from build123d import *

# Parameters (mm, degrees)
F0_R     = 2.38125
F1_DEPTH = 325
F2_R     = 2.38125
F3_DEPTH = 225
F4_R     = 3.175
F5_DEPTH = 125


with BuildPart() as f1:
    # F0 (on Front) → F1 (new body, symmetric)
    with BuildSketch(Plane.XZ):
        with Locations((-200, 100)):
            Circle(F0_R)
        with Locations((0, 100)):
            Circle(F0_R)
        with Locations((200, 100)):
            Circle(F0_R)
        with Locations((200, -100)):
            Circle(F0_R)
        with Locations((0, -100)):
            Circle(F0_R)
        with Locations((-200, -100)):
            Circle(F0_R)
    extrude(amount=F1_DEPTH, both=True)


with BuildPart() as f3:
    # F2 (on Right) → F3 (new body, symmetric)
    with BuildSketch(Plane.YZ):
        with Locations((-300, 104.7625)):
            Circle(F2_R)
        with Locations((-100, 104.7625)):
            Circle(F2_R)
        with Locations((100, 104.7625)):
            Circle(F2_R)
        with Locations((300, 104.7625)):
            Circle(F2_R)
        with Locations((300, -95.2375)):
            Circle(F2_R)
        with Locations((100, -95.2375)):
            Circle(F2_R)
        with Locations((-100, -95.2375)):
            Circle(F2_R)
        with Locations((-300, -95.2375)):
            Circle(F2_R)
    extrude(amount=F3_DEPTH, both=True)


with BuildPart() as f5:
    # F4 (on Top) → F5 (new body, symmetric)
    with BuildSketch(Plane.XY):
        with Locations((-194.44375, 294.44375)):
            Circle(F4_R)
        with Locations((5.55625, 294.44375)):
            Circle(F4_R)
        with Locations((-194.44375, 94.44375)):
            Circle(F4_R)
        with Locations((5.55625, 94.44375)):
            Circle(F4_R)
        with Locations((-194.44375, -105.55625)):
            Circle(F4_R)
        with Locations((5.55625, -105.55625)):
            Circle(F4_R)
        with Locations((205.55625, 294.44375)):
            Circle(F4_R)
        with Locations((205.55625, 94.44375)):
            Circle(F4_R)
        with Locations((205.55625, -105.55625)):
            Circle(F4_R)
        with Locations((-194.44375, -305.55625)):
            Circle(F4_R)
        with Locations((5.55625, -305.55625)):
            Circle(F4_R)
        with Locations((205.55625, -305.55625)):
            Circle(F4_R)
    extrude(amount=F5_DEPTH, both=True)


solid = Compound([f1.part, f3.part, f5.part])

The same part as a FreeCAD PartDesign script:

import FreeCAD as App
import Part
import Sketcher

doc = App.newDocument("Part")
body = doc.addObject("PartDesign::Body", "Body")
body.AllowCompound = True

sketch1 = body.newObject("Sketcher::SketchObject", "Sketch")
sketch1.AttachmentSupport = (doc.getObject("XZ_Plane"), [""])
sketch1.MapMode = "FlatFace"
sketch1.addGeometry([
    Part.Circle(App.Vector(-200, 100, 0), App.Vector(0, 0, 1), 2.4),
    Part.Circle(App.Vector(0, 100, 0), App.Vector(0, 0, 1), 2.4),
    Part.Circle(App.Vector(200, 100, 0), App.Vector(0, 0, 1), 2.4),
    Part.Circle(App.Vector(200, -100, 0), App.Vector(0, 0, 1), 2.4),
    Part.Circle(App.Vector(0, -100, 0), App.Vector(0, 0, 1), 2.4),
    Part.Circle(App.Vector(-200, -100, 0), App.Vector(0, 0, 1), 2.4),
], False)
sketch1.addConstraint([
    Sketcher.Constraint("Equal", 0, 1),
    Sketcher.Constraint("Equal", 1, 2),
    Sketcher.Constraint("Equal", 2, 3),
    Sketcher.Constraint("Equal", 3, 4),
    Sketcher.Constraint("Equal", 4, 5),
    Sketcher.Constraint("Symmetric", 0, 3, 3, 3, -1, 1),
    Sketcher.Constraint("Symmetric", 1, 3, 4, 3, -1, 1),
    Sketcher.Constraint("Symmetric", 2, 3, 5, 3, -1, 1),
    Sketcher.Constraint("Symmetric", 0, 3, 2, 3, -2),
    Sketcher.Constraint("PointOnObject", 1, 3, -2),
    Sketcher.Constraint("Horizontal", 0, 3, 1, 3),
    Sketcher.Constraint("DistanceX", 0, 3, -1, 1, 200.0),
    Sketcher.Constraint("DistanceY", -1, 1, 0, 3, 100.0),
    Sketcher.Constraint("Diameter", 0, 4.7625),
])
pad1 = body.newObject("PartDesign::Pad", "Pad")
pad1.Profile = sketch1
pad1.Length = 650
pad1.Midplane = True
body2 = doc.addObject("PartDesign::Body", "Body001")
body2.AllowCompound = True

sketch2 = body2.newObject("Sketcher::SketchObject", "Sketch001")
sketch2.AttachmentSupport = (doc.getObject("YZ_Plane001"), [""])
sketch2.MapMode = "FlatFace"
sketch2.addGeometry([
    Part.Circle(App.Vector(-300, 104.8, 0), App.Vector(0, 0, 1), 2.4),
    Part.Circle(App.Vector(-100, 104.8, 0), App.Vector(0, 0, 1), 2.4),
    Part.Circle(App.Vector(100, 104.8, 0), App.Vector(0, 0, 1), 2.4),
    Part.Circle(App.Vector(300, 104.8, 0), App.Vector(0, 0, 1), 2.4),
    Part.Circle(App.Vector(300, -95.2, 0), App.Vector(0, 0, 1), 2.4),
    Part.Circle(App.Vector(100, -95.2, 0), App.Vector(0, 0, 1), 2.4),
    Part.Circle(App.Vector(-100, -95.2, 0), App.Vector(0, 0, 1), 2.4),
    Part.Circle(App.Vector(-300, -95.2, 0), App.Vector(0, 0, 1), 2.4),
], False)
sketch2.addConstraint([
    Sketcher.Constraint("Equal", 0, 1),
    Sketcher.Constraint("Equal", 1, 2),
    Sketcher.Constraint("Equal", 2, 3),
    Sketcher.Constraint("Equal", 3, 4),
    Sketcher.Constraint("Equal", 4, 5),
    Sketcher.Constraint("Equal", 5, 6),
    Sketcher.Constraint("Equal", 6, 7),
    Sketcher.Constraint("Symmetric", 1, 3, 2, 3, -2),
    Sketcher.Constraint("Symmetric", 0, 3, 3, 3, -2),
    Sketcher.Constraint("Symmetric", 5, 3, 6, 3, -2),
    Sketcher.Constraint("Symmetric", 4, 3, 7, 3, -2),
    Sketcher.Constraint("Horizontal", 0, 3, 1, 3),
    Sketcher.Constraint("Horizontal", 4, 3, 5, 3),
    Sketcher.Constraint("Vertical", 3, 3, 4, 3),
    Sketcher.Constraint("Vertical", 2, 3, 5, 3),
    Sketcher.Constraint("DistanceX", 0, 3, -1, 1, 300.0),
    Sketcher.Constraint("DistanceX", 1, 3, -1, 1, 100.0),
    Sketcher.Constraint("DistanceY", 4, 3, 3, 3, 200.0),
    Sketcher.Constraint("Diameter", 0, 4.7625),
    Sketcher.Constraint("DistanceY", -1, 1, 0, 3, 104.7625),
])
pad2 = body2.newObject("PartDesign::Pad", "Pad001")
pad2.Profile = sketch2
pad2.Length = 450
pad2.Midplane = True
body3 = doc.addObject("PartDesign::Body", "Body002")
body3.AllowCompound = True

sketch3 = body3.newObject("Sketcher::SketchObject", "Sketch002")
sketch3.AttachmentSupport = (doc.getObject("XY_Plane002"), [""])
sketch3.MapMode = "FlatFace"
sketch3.addGeometry([
    Part.Circle(App.Vector(-194.4, 294.4, 0), App.Vector(0, 0, 1), 3.2),
    Part.Circle(App.Vector(5.6, 294.4, 0), App.Vector(0, 0, 1), 3.2),
    Part.Circle(App.Vector(-194.4, 94.4, 0), App.Vector(0, 0, 1), 3.2),
    Part.Circle(App.Vector(5.6, 94.4, 0), App.Vector(0, 0, 1), 3.2),
    Part.Circle(App.Vector(-194.4, -105.6, 0), App.Vector(0, 0, 1), 3.2),
    Part.Circle(App.Vector(5.6, -105.6, 0), App.Vector(0, 0, 1), 3.2),
    Part.Circle(App.Vector(205.6, 294.4, 0), App.Vector(0, 0, 1), 3.2),
    Part.Circle(App.Vector(205.6, 94.4, 0), App.Vector(0, 0, 1), 3.2),
    Part.Circle(App.Vector(205.6, -105.6, 0), App.Vector(0, 0, 1), 3.2),
    Part.Circle(App.Vector(-194.4, -305.6, 0), App.Vector(0, 0, 1), 3.2),
    Part.Circle(App.Vector(5.6, -305.6, 0), App.Vector(0, 0, 1), 3.2),
    Part.Circle(App.Vector(205.6, -305.6, 0), App.Vector(0, 0, 1), 3.2),
], False)
sketch3.addConstraint([
    Sketcher.Constraint("Equal", 0, 1),
    Sketcher.Constraint("Equal", 1, 2),
    Sketcher.Constraint("Equal", 2, 3),
    Sketcher.Constraint("Equal", 3, 4),
    Sketcher.Constraint("Equal", 4, 5),
    Sketcher.Constraint("Equal", 5, 6),
    Sketcher.Constraint("Equal", 6, 7),
    Sketcher.Constraint("Equal", 7, 8),
    Sketcher.Constraint("Equal", 8, 9),
    Sketcher.Constraint("Equal", 9, 10),
    Sketcher.Constraint("Equal", 10, 11),
    Sketcher.Constraint("Horizontal", 0, 3, 1, 3),
    Sketcher.Constraint("Horizontal", 2, 3, 3, 3),
    Sketcher.Constraint("Horizontal", 4, 3, 5, 3),
    Sketcher.Constraint("Horizontal", 1, 3, 6, 3),
    Sketcher.Constraint("Horizontal", 3, 3, 7, 3),
    Sketcher.Constraint("Horizontal", 5, 3, 8, 3),
    Sketcher.Constraint("Horizontal", 9, 3, 10, 3),
    Sketcher.Constraint("Horizontal", 10, 3, 11, 3),
    Sketcher.Constraint("Vertical", 0, 3, 2, 3),
    Sketcher.Constraint("Vertical", 1, 3, 3, 3),
    Sketcher.Constraint("Vertical", 2, 3, 4, 3),
    Sketcher.Constraint("Vertical", 3, 3, 5, 3),
    Sketcher.Constraint("Vertical", 6, 3, 7, 3),
    Sketcher.Constraint("Vertical", 7, 3, 8, 3),
    Sketcher.Constraint("Vertical", 4, 3, 9, 3),
    Sketcher.Constraint("Vertical", 5, 3, 10, 3),
    Sketcher.Constraint("Vertical", 8, 3, 11, 3),
    Sketcher.Constraint("Diameter", 0, 6.35),
    Sketcher.Constraint("DistanceX", 0, 3, 1, 3, 200.0),
    Sketcher.Constraint("DistanceY", 2, 3, 0, 3, 200.0),
    Sketcher.Constraint("DistanceY", 4, 3, 2, 3, 200.0),
    Sketcher.Constraint("DistanceX", 1, 3, 6, 3, 200.0),
    Sketcher.Constraint("DistanceY", 9, 3, 4, 3, 200.0),
    Sketcher.Constraint("DistanceX", 0, 3, -1, 1, 194.44375),
    Sketcher.Constraint("DistanceY", -1, 1, 0, 3, 294.44375),
])
pad3 = body3.newObject("PartDesign::Pad", "Pad002")
pad3.Profile = sketch3
pad3.Length = 250
pad3.Midplane = True

doc.recompute()
